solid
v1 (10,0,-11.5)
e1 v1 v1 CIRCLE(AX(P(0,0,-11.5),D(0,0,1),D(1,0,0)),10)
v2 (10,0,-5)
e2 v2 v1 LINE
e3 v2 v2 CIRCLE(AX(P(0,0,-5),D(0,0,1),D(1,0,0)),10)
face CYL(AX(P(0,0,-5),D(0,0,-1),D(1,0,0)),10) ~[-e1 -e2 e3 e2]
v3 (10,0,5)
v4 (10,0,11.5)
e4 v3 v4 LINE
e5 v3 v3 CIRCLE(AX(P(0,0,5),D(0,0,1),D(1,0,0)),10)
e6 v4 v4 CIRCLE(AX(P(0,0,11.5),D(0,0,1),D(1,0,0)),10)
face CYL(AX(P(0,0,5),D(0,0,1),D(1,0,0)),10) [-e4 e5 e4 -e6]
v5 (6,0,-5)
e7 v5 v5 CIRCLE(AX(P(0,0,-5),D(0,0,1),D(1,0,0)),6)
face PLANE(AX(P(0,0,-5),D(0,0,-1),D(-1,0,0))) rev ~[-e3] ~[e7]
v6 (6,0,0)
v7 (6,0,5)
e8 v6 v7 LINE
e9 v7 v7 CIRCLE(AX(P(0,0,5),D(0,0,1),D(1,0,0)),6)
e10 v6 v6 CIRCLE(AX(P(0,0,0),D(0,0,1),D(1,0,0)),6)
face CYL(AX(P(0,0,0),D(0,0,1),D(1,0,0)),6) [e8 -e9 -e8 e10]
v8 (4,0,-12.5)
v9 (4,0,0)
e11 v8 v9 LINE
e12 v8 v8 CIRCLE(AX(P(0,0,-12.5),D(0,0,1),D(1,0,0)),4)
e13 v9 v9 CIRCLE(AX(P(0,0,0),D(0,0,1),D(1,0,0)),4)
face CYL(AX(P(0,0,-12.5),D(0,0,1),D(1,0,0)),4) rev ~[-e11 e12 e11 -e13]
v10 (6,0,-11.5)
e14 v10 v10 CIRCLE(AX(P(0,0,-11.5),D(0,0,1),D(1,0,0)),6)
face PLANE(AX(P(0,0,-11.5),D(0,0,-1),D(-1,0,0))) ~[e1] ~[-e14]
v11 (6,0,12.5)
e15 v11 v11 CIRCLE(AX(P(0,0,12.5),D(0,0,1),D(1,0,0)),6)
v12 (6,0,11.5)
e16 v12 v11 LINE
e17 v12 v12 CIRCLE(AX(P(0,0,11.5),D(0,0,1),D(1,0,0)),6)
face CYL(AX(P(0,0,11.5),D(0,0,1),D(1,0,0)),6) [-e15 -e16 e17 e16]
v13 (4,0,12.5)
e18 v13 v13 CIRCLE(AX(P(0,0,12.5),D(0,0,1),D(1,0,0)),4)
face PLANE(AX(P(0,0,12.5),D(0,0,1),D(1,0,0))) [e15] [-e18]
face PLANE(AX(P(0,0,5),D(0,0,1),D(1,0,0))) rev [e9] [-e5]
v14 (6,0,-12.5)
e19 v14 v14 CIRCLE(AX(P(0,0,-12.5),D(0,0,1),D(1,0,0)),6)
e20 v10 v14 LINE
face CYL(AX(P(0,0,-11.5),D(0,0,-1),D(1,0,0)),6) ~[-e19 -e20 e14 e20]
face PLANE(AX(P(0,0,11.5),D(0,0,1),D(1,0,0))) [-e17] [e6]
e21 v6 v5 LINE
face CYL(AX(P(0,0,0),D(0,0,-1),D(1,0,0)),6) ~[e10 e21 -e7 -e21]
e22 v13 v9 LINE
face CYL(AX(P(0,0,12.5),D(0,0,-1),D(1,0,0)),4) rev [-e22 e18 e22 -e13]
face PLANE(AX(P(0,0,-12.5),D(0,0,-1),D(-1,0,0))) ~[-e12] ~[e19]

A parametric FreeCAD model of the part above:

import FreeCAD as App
import Part
import Sketcher
Q = App.Units.Quantity

doc = App.newDocument("Part")
body = doc.addObject("PartDesign::Body", "Body")

sketch1 = doc.addObject("Sketcher::SketchObject", "Sketch")
body.addObject(sketch1)
sketch1.AttachmentSupport = (doc.XZ_Plane, [""])
sketch1.MapMode = "FlatFace"
sketch1.addGeometry(Part.LineSegment(App.Vector(6, 5, 0), App.Vector(6, 0, 0)), False)
sketch1.addGeometry(Part.LineSegment(App.Vector(6, 0, 0), App.Vector(4, 0, 0)), False)
sketch1.addGeometry(Part.LineSegment(App.Vector(4, 0, 0), App.Vector(4, 12.5, 0)), False)
sketch1.addGeometry(Part.LineSegment(App.Vector(4, 12.5, 0), App.Vector(6, 12.5, 0)), False)
sketch1.addGeometry(Part.LineSegment(App.Vector(6, 12.5, 0), App.Vector(6, 11.5, 0)), False)
sketch1.addGeometry(Part.LineSegment(App.Vector(6, 11.5, 0), App.Vector(10, 11.5, 0)), False)
sketch1.addGeometry(Part.LineSegment(App.Vector(10, 11.5, 0), App.Vector(10, 5, 0)), False)
sketch1.addGeometry(Part.LineSegment(App.Vector(10, 5, 0), App.Vector(6, 5, 0)), False)
sketch1.addConstraint(Sketcher.Constraint("Coincident", 0, 2, 1, 1))
sketch1.addConstraint(Sketcher.Constraint("Coincident", 1, 2, 2, 1))
sketch1.addConstraint(Sketcher.Constraint("Coincident", 2, 2, 3, 1))
sketch1.addConstraint(Sketcher.Constraint("Coincident", 3, 2, 4, 1))
sketch1.addConstraint(Sketcher.Constraint("Coincident", 4, 2, 5, 1))
sketch1.addConstraint(Sketcher.Constraint("Coincident", 5, 2, 6, 1))
sketch1.addConstraint(Sketcher.Constraint("Coincident", 6, 2, 7, 1))
sketch1.addConstraint(Sketcher.Constraint("Coincident", 7, 2, 0, 1))
sketch1.addConstraint(Sketcher.Constraint("Vertical", 0))
sketch1.addConstraint(Sketcher.Constraint("Horizontal", 1))
sketch1.addConstraint(Sketcher.Constraint("Vertical", 2))
sketch1.addConstraint(Sketcher.Constraint("Horizontal", 3))
sketch1.addConstraint(Sketcher.Constraint("Vertical", 4))
sketch1.addConstraint(Sketcher.Constraint("Horizontal", 5))
sketch1.addConstraint(Sketcher.Constraint("Vertical", 6))
sketch1.addConstraint(Sketcher.Constraint("Horizontal", 7))
sketch1.addConstraint(Sketcher.Constraint("PointOnObject", 0, 2, -1))
sketch1.addConstraint(Sketcher.Constraint("Vertical", 0, 2, 3, 2))
sketch1.addConstraint(Sketcher.Constraint("DistanceX", 5, 1, 5, 2, Q("4 mm")))
sketch1.addConstraint(Sketcher.Constraint("DistanceY", 0, 2, 0, 1, Q("5 mm")))
sketch1.addConstraint(Sketcher.Constraint("DistanceY", 4, 2, 4, 1, Q("1 mm")))
sketch1.addConstraint(Sketcher.Constraint("DistanceY", 2, 1, 2, 2, Q("12.5 mm")))
sketch1.addConstraint(Sketcher.Constraint("DistanceX", -1, 1, 0, 2, Q("6 mm")))
sketch1.addConstraint(Sketcher.Constraint("DistanceX", -1, 1, 1, 2, Q("4 mm")))
revolution = doc.addObject("PartDesign::Revolution", "Revolution")
body.addObject(revolution)
revolution.Profile = sketch1
revolution.ReferenceAxis = (sketch1, ["V_Axis"])
revolution.Angle = 360
doc.recompute()

mirrored = doc.addObject("PartDesign::Mirrored", "Mirrored")
body.addObject(mirrored)
mirrored.Originals = [revolution]
mirrored.MirrorPlane = (doc.XY_Plane, [""])
body.Tip = mirrored

doc.recompute()
